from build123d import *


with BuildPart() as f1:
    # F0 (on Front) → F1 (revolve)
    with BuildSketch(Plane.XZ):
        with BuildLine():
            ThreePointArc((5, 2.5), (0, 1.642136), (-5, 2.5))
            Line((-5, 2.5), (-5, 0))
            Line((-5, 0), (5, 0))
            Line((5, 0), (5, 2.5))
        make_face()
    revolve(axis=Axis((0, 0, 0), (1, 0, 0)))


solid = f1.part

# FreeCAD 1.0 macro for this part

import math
import FreeCAD as App
import Part
import Sketcher

doc = App.newDocument("Part")
body = doc.addObject("PartDesign::Body", "Body")

sketch1 = body.newObject("Sketcher::SketchObject", "Sketch")
sketch1.AttachmentSupport = (doc.getObject("XZ_Plane"), [""])
sketch1.MapMode = "FlatFace"
sketch1.addGeometry(Part.ArcOfCircle(Part.Circle(App.Vector(0, 16.6, 0), App.Vector(0, 0, 1), 15), math.radians(-109), math.radians(-71)), False)
sketch1.addGeometry(Part.LineSegment(App.Vector(-5, 2.5, 0), App.Vector(-5, 0, 0)), False)
sketch1.addGeometry(Part.LineSegment(App.Vector(-5, 0, 0), App.Vector(5, 0, 0)), False)
sketch1.addGeometry(Part.LineSegment(App.Vector(5, 0, 0), App.Vector(5, 2.5, 0)), False)
sketch1.addConstraint(Sketcher.Constraint("Coincident", 0, 1, 1, 1))
sketch1.addConstraint(Sketcher.Constraint("Coincident", 1, 2, 2, 1))
sketch1.addConstraint(Sketcher.Constraint("Coincident", 2, 2, 3, 1))
sketch1.addConstraint(Sketcher.Constraint("Coincident", 3, 2, 0, 2))
sketch1.addConstraint(Sketcher.Constraint("Vertical", 1))
sketch1.addConstraint(Sketcher.Constraint("Horizontal", 2))
sketch1.addConstraint(Sketcher.Constraint("Vertical", 3))
sketch1.addConstraint(Sketcher.Constraint("Symmetric", 1, 2, 2, 2, -1, 1))
sketch1.addConstraint(Sketcher.Constraint("PointOnObject", 0, 3, -2))
sketch1.addConstraint(Sketcher.Constraint("DistanceX", 2, 1, 2, 2, 10.0))
sketch1.addConstraint(Sketcher.Constraint("DistanceY", 1, 2, 1, 1, 2.5))
sketch1.addConstraint(Sketcher.Constraint("Radius", 0, 15.000006))
revolution = body.newObject("PartDesign::Revolution", "Revolution")
revolution.Profile = sketch1
revolution.ReferenceAxis = (sketch1, ["H_Axis"])
revolution.Angle = 360

doc.recompute()
